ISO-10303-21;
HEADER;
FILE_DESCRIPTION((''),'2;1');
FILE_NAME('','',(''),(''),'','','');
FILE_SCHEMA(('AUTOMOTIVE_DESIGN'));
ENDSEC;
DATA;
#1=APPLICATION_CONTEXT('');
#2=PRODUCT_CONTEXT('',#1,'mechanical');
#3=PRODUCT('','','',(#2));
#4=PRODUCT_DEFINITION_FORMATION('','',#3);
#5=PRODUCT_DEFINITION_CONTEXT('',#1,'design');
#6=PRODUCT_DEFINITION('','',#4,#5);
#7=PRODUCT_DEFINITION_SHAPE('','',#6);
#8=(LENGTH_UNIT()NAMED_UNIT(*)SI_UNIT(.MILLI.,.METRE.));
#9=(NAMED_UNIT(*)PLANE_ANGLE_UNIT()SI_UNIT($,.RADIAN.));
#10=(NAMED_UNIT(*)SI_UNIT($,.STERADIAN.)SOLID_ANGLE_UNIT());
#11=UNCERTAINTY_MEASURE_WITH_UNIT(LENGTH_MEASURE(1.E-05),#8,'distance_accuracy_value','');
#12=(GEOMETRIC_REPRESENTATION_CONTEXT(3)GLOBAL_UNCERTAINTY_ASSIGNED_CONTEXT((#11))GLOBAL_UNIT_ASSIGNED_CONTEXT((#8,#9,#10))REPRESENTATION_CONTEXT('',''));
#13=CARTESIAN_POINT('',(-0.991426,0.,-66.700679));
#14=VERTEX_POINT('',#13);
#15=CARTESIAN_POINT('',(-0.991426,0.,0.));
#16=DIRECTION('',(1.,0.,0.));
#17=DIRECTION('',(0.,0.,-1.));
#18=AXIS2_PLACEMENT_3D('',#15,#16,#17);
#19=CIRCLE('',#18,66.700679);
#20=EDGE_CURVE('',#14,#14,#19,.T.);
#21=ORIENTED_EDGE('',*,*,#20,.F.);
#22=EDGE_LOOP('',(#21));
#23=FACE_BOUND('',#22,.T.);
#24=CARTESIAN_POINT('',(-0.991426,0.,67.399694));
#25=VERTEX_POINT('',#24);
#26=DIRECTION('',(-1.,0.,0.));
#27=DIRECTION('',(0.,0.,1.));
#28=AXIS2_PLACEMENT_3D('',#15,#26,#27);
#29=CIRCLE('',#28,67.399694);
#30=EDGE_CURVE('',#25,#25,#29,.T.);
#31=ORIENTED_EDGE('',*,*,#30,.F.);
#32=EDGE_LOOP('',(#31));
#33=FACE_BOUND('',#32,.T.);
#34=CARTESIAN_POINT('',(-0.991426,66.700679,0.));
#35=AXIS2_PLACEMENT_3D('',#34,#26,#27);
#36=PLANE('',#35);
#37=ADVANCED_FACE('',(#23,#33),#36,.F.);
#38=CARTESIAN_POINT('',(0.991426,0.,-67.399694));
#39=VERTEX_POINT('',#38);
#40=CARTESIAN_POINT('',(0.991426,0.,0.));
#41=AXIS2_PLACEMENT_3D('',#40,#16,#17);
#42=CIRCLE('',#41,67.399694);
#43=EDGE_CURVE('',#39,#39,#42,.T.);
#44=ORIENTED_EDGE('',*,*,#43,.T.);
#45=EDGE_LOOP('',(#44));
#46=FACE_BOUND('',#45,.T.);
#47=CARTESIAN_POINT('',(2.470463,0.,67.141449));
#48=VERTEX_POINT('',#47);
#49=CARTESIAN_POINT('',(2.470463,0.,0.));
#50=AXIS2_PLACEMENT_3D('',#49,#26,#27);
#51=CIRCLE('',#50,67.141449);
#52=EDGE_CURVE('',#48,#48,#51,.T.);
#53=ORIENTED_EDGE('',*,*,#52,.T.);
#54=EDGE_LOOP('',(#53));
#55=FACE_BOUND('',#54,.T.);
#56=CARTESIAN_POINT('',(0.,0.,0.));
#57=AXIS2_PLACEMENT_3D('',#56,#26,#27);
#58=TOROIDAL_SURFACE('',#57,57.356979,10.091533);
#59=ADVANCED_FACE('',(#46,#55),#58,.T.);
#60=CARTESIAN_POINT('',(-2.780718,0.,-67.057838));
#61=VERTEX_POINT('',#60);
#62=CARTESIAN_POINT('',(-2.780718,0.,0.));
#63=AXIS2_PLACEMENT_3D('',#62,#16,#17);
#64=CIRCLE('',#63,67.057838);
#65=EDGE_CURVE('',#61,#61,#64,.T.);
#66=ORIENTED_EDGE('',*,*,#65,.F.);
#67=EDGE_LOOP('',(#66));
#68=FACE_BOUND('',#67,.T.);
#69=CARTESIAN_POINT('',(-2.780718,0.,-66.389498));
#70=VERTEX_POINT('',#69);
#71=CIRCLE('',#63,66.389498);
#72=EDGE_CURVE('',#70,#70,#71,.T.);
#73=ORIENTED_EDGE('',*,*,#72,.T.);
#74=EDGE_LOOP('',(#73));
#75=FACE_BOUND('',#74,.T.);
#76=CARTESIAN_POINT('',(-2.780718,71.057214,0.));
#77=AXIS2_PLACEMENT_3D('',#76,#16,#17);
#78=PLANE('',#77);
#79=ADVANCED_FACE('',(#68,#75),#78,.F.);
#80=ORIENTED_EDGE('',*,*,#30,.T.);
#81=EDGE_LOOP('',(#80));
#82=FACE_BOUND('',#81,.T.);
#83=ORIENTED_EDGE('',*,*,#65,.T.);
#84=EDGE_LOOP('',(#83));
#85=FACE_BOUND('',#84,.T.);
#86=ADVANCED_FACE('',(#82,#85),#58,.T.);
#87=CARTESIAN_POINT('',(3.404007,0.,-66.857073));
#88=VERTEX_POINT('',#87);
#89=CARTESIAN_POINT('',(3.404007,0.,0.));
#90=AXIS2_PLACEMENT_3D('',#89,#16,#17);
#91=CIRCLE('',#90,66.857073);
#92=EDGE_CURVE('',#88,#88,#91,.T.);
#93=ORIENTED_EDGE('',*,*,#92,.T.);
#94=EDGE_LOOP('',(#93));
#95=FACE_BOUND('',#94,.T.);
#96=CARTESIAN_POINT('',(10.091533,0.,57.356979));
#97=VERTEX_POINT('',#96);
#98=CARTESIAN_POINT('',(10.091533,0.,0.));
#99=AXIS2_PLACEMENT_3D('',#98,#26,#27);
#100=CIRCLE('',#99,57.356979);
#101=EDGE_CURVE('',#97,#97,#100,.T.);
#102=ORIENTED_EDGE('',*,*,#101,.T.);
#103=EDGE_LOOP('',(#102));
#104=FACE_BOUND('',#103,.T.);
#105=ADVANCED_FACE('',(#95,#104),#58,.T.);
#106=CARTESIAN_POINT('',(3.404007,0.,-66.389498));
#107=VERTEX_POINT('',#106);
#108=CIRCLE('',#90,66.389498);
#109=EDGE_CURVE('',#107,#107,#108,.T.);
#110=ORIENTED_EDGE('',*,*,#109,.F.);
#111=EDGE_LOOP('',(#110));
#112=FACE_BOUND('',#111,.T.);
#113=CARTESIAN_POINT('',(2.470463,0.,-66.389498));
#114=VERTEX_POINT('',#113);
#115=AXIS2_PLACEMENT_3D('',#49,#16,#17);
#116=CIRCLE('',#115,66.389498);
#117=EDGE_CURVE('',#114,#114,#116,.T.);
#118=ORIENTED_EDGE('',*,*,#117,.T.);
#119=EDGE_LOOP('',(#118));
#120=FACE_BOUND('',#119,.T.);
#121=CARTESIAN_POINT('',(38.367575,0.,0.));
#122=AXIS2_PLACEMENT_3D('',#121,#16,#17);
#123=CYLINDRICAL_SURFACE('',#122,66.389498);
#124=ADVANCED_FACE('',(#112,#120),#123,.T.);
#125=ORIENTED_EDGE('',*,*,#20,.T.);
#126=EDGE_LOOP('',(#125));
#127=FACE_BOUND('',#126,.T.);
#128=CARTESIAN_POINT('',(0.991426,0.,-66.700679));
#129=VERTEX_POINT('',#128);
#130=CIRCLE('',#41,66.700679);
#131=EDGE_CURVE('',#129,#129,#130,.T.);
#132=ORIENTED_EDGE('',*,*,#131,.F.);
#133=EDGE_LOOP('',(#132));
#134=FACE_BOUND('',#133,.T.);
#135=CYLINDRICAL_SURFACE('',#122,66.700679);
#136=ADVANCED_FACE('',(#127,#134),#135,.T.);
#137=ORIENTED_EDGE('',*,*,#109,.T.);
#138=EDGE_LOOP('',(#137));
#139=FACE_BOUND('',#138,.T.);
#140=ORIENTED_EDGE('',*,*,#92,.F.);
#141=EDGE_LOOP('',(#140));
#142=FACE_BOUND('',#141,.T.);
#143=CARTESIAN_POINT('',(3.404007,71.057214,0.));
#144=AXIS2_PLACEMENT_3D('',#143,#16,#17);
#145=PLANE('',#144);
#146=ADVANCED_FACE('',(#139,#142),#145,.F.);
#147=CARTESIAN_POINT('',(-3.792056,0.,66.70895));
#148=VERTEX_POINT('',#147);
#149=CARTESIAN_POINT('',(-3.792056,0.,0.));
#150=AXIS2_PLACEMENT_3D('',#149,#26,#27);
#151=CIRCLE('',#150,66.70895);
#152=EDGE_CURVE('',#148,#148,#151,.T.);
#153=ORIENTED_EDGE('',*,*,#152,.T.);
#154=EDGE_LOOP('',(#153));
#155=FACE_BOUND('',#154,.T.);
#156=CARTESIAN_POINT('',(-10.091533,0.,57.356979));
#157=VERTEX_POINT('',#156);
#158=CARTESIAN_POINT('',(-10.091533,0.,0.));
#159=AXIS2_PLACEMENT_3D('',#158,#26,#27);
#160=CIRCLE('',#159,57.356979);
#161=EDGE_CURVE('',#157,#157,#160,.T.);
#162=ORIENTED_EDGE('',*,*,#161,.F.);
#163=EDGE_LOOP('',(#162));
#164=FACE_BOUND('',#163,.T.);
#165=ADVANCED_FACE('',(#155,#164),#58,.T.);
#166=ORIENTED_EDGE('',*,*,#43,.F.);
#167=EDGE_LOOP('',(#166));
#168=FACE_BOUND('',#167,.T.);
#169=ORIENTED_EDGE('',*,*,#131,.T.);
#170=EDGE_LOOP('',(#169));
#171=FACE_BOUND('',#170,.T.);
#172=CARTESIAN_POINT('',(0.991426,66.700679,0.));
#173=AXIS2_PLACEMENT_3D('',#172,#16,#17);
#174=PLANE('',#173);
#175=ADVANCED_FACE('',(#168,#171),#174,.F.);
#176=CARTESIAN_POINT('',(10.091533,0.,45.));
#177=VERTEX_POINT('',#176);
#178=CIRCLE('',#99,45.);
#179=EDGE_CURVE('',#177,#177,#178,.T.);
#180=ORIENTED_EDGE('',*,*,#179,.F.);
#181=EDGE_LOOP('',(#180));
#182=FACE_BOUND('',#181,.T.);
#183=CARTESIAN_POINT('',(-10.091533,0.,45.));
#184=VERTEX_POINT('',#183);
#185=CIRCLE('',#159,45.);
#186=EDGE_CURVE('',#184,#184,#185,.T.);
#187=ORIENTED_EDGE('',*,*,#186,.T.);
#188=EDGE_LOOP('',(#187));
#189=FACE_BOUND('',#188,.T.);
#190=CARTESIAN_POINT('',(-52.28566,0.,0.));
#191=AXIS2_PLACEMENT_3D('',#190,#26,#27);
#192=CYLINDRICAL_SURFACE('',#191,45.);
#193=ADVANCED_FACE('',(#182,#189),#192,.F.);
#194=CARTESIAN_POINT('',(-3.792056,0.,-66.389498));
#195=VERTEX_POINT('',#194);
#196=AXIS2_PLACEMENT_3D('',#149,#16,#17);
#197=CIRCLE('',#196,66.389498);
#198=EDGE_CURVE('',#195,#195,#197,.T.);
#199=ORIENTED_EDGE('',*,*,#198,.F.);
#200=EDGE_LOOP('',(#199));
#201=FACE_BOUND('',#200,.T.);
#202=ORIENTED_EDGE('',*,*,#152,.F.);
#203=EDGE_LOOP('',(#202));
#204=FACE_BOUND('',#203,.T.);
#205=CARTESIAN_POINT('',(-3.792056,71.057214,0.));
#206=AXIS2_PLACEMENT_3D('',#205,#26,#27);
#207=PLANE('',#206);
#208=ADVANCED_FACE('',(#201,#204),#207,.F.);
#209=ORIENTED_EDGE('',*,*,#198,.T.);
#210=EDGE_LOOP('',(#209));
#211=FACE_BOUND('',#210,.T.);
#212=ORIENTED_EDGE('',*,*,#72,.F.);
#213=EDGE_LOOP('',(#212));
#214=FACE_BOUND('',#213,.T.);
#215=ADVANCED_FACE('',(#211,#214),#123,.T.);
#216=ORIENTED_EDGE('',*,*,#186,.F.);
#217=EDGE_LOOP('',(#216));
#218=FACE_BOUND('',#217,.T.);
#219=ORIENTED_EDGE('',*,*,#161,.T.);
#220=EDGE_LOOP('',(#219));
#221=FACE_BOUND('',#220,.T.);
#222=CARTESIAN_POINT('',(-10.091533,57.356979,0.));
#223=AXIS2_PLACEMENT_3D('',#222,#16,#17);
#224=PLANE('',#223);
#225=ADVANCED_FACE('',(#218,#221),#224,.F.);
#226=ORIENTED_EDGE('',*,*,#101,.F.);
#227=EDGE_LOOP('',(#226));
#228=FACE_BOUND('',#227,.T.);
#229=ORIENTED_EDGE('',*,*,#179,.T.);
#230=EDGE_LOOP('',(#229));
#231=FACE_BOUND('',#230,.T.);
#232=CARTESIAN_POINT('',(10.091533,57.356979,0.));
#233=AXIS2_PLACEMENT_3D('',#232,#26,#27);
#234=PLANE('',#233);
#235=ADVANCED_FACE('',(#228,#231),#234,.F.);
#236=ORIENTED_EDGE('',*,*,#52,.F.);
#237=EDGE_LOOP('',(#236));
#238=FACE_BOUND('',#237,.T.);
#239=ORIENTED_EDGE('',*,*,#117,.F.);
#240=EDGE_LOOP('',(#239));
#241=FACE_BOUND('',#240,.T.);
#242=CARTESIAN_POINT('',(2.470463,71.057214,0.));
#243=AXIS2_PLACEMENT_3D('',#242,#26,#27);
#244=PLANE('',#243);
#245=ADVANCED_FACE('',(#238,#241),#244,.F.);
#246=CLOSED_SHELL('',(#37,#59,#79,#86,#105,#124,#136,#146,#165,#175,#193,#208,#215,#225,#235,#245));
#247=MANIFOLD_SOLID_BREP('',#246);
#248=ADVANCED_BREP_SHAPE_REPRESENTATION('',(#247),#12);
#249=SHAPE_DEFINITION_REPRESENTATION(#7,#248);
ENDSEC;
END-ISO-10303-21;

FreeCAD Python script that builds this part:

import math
import FreeCAD as App
import Part
import Sketcher

doc = App.newDocument("Part")
params = doc.addObject("Spreadsheet::Sheet", "Params")
for row, (alias, value) in enumerate([
    ("revolution_angle", "360 deg"),
    ("groove_angle", "360 deg"),
], start=1):
    params.set(f"A{row}", alias)
    params.set(f"B{row}", "=" + value)
    params.setAlias(f"B{row}", alias)

body = doc.addObject("PartDesign::Body", "Body")

# Sketch on XY plane
sketch1 = doc.addObject("Sketcher::SketchObject", "Sketch")
body.addObject(sketch1)
sketch1.AttachmentSupport = (doc.XY_Plane, [""])
sketch1.MapMode = "FlatFace"
sketch1.addGeometry([
    Part.LineSegment(App.Vector(-10.091533, 57.356979, 0), App.Vector(-10.091533, 45, 0)),
    Part.LineSegment(App.Vector(-10.091533, 45, 0), App.Vector(10.091533, 45, 0)),
    Part.LineSegment(App.Vector(10.091533, 45, 0), App.Vector(10.091533, 57.356979, 0)),
    Part.ArcOfCircle(Part.Circle(App.Vector(0, 57.356979, 0), App.Vector(0, 0, 1), 10.091533), math.radians(0), math.radians(180)),
], False)
sketch1.addConstraint([
    Sketcher.Constraint("Coincident", 0, 2, 1, 1),
    Sketcher.Constraint("Coincident", 1, 2, 2, 1),
    Sketcher.Constraint("Tangent", 2, 2, 3, 1),
    Sketcher.Constraint("Tangent", 3, 2, 0, 1),
    Sketcher.Constraint("Vertical", 0),
    Sketcher.Constraint("Horizontal", 1),
    Sketcher.Constraint("Vertical", 2),
    Sketcher.Constraint("PointOnObject", 3, 3, -2),
    Sketcher.Constraint("DistanceY", -1, 1, 0, 2, 45.0),
    Sketcher.Constraint("Radius", 3, 10.091533),
    Sketcher.Constraint("DistanceY", 0, 2, 0, 1, 12.356979),
])
revolution = doc.addObject("PartDesign::Revolution", "Revolution")
body.addObject(revolution)
revolution.Profile = sketch1
revolution.ReferenceAxis = (sketch1, ["H_Axis"])
revolution.setExpression("Angle", "Params.revolution_angle")

# Sketch on XY plane
sketch2 = doc.addObject("Sketcher::SketchObject", "Sketch001")
body.addObject(sketch2)
sketch2.AttachmentSupport = (doc.XY_Plane, [""])
sketch2.MapMode = "FlatFace"
sketch2.addGeometry([
    Part.LineSegment(App.Vector(-0.991426, 70.746033, 0), App.Vector(-0.991426, 66.700679, 0)),  # 0
    Part.LineSegment(App.Vector(-0.991426, 66.700679, 0), App.Vector(0.991426, 66.700679, 0)),  # 1
    Part.LineSegment(App.Vector(0.991426, 66.700679, 0), App.Vector(0.991426, 70.746033, 0)),  # 2
    Part.LineSegment(App.Vector(0.991426, 70.746033, 0), App.Vector(-0.991426, 70.746033, 0)),  # 3
    Part.LineSegment(App.Vector(2.470463, 71.057214, 0), App.Vector(2.470463, 66.389498, 0)),  # 4
    Part.LineSegment(App.Vector(2.470463, 66.389498, 0), App.Vector(3.404007, 66.389498, 0)),  # 5
    Part.LineSegment(App.Vector(3.404007, 66.389498, 0), App.Vector(3.404007, 71.057214, 0)),  # 6
    Part.LineSegment(App.Vector(3.404007, 71.057214, 0), App.Vector(2.470463, 71.057214, 0)),  # 7
    Part.LineSegment(App.Vector(-3.792056, 71.057214, 0), App.Vector(-3.792056, 66.389498, 0)),  # 8
    Part.LineSegment(App.Vector(-3.792056, 66.389498, 0), App.Vector(-2.780718, 66.389498, 0)),  # 9
    Part.LineSegment(App.Vector(-2.780718, 66.389498, 0), App.Vector(-2.780718, 71.057214, 0)),  # 10
    Part.LineSegment(App.Vector(-2.780718, 71.057214, 0), App.Vector(-3.792056, 71.057214, 0)),  # 11
], False)
sketch2.addConstraint([
    Sketcher.Constraint("Coincident", 0, 2, 1, 1),
    Sketcher.Constraint("Coincident", 1, 2, 2, 1),
    Sketcher.Constraint("Coincident", 2, 2, 3, 1),
    Sketcher.Constraint("Coincident", 3, 2, 0, 1),
    Sketcher.Constraint("Coincident", 4, 2, 5, 1),
    Sketcher.Constraint("Coincident", 5, 2, 6, 1),
    Sketcher.Constraint("Coincident", 6, 2, 7, 1),
    Sketcher.Constraint("Coincident", 7, 2, 4, 1),
    Sketcher.Constraint("Coincident", 8, 2, 9, 1),
    Sketcher.Constraint("Coincident", 9, 2, 10, 1),
    Sketcher.Constraint("Coincident", 10, 2, 11, 1),
    Sketcher.Constraint("Coincident", 11, 2, 8, 1),
    Sketcher.Constraint("Vertical", 0),
    Sketcher.Constraint("Horizontal", 1),
    Sketcher.Constraint("Vertical", 2),
    Sketcher.Constraint("Horizontal", 3),
    Sketcher.Constraint("Vertical", 4),
    Sketcher.Constraint("Horizontal", 5),
    Sketcher.Constraint("Vertical", 6),
    Sketcher.Constraint("Horizontal", 7),
    Sketcher.Constraint("Vertical", 8),
    Sketcher.Constraint("Horizontal", 9),
    Sketcher.Constraint("Vertical", 10),
    Sketcher.Constraint("Horizontal", 11),
    Sketcher.Constraint("Horizontal", 5, 2, 8, 2),
    Sketcher.Constraint("Horizontal", 7, 2, 10, 2),
    Sketcher.Constraint("DistanceX", 9, 1, 9, 2, 1.011339),
    Sketcher.Constraint("DistanceX", 1, 1, 1, 2, 1.982853),
    Sketcher.Constraint("DistanceX", 5, 1, 5, 2, 0.933543),
    Sketcher.Constraint("DistanceY", 0, 2, 0, 1, 4.045354),
    Sketcher.Constraint("DistanceY", 4, 2, 4, 1, 4.667716),
    Sketcher.Constraint("DistanceY", -1, 1, 0, 2, 66.700679),
    Sketcher.Constraint("DistanceY", 4, 2, 1, 2, 0.311181),
    Sketcher.Constraint("DistanceX", 0, 2, 4, 2, 3.46189),
    Sketcher.Constraint("DistanceX", 8, 2, 0, 2, 2.80063),
    Sketcher.Constraint("DistanceX", 0, 2, -1, 1, 0.991426),
])
groove = doc.addObject("PartDesign::Groove", "Groove")
body.addObject(groove)
groove.Profile = sketch2
groove.ReferenceAxis = (sketch2, ["H_Axis"])
groove.setExpression("Angle", "Params.groove_angle")

doc.recompute()
